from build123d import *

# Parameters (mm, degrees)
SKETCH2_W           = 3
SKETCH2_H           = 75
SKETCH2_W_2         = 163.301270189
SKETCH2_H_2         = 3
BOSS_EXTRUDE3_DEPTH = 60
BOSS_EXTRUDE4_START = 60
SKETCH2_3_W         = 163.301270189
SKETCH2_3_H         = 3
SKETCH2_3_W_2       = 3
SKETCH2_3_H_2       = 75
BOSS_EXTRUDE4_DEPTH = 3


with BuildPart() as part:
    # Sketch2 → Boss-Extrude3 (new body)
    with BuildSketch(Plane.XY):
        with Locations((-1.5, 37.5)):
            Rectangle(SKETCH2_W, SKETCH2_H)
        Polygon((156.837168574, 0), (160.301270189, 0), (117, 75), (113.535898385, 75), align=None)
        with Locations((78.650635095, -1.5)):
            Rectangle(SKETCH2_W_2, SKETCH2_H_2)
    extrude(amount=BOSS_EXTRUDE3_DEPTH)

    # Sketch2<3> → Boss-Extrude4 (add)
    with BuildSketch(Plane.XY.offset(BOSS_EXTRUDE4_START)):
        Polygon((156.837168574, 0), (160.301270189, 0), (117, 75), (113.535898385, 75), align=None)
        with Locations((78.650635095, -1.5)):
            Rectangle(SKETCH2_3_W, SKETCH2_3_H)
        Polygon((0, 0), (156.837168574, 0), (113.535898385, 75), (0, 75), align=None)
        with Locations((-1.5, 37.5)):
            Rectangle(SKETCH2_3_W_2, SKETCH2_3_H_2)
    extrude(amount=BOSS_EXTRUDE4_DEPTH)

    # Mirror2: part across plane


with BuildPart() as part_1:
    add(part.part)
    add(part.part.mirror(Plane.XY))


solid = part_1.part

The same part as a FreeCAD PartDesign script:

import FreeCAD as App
import Part
import Sketcher

V = App.Vector
Q = App.Units.Quantity


def add_polygon(sketch, points):
    """Adds a closed chain of lines whose ends are joined by coincident constraints."""
    first, n = sketch.GeometryCount, len(points)
    for a, b in zip(points, points[1:] + points[:1]):
        sketch.addGeometry(Part.LineSegment(App.Vector(*a, 0), App.Vector(*b, 0)), False)
    for i in range(n):
        sketch.addConstraint(Sketcher.Constraint("Coincident", first + i, 2, first + (i + 1) % n, 1))

doc = App.newDocument("Part")
body = doc.addObject("PartDesign::Body", "Body")

# Sketch on XY plane
sketch1 = doc.addObject("Sketcher::SketchObject", "Sketch")
body.addObject(sketch1)
sketch1.AttachmentSupport = (doc.XY_Plane, [""])
sketch1.MapMode = "FlatFace"
add_polygon(sketch1, [(-3, 75), (-3, -3), (160.3, -3), (160.3, 0), (117, 75), (113.5, 75), (156.8, 0), (0, 0), (0, 75)])  # lines 0-8
sketch1.addConstraint(Sketcher.Constraint("Vertical", 0))
sketch1.addConstraint(Sketcher.Constraint("Horizontal", 1))
sketch1.addConstraint(Sketcher.Constraint("Vertical", 2))
sketch1.addConstraint(Sketcher.Constraint("Horizontal", 4))
sketch1.addConstraint(Sketcher.Constraint("Horizontal", 6))
sketch1.addConstraint(Sketcher.Constraint("Vertical", 7))
sketch1.addConstraint(Sketcher.Constraint("Horizontal", 8))
sketch1.addConstraint(Sketcher.Constraint("Coincident", 6, 2, -1, 1))
sketch1.addConstraint(Sketcher.Constraint("PointOnObject", 2, 2, -1))
sketch1.addConstraint(Sketcher.Constraint("Parallel", 3, 5))
sketch1.addConstraint(Sketcher.Constraint("Horizontal", 4, 2, 7, 2))
sketch1.addConstraint(Sketcher.Constraint("Equal", 8, 2))
sketch1.addConstraint(Sketcher.Constraint("DistanceX", 8, 2, 8, 1, Q("3 mm")))
sketch1.addConstraint(Sketcher.Constraint("DistanceY", 0, 2, 0, 1, Q("78 mm")))
sketch1.addConstraint(Sketcher.Constraint("Angle", 3, Q("120 deg")))
sketch1.addConstraint(Sketcher.Constraint("DistanceX", -1, 1, 3, 2, Q("117 mm")))
sketch1.addConstraint(Sketcher.Constraint("DistanceX", 4, 2, 4, 1, Q("3.464102 mm")))
pad1 = doc.addObject("PartDesign::Pad", "Pad")
body.addObject(pad1)
pad1.Profile = sketch1
pad1.Length = 60

# Sketch on XY plane
sketch2 = doc.addObject("Sketcher::SketchObject", "Sketch001")
body.addObject(sketch2)
sketch2.AttachmentSupport = (doc.XY_Plane, [""])
sketch2.MapMode = "FlatFace"
sketch2.AttachmentOffset = App.Placement(V(0, 0, 60), App.Rotation())
add_polygon(sketch2, [(160.3, 0), (117, 75), (-3, 75), (-3, 0), (-3, -3), (160.3, -3)])  # lines 0-5
sketch2.addConstraint(Sketcher.Constraint("Horizontal", 1))
sketch2.addConstraint(Sketcher.Constraint("Vertical", 2))
sketch2.addConstraint(Sketcher.Constraint("Vertical", 3))
sketch2.addConstraint(Sketcher.Constraint("Horizontal", 4))
sketch2.addConstraint(Sketcher.Constraint("Vertical", 5))
sketch2.addConstraint(Sketcher.Constraint("PointOnObject", 2, 2, -1))
sketch2.addConstraint(Sketcher.Constraint("PointOnObject", 5, 2, -1))
sketch2.addConstraint(Sketcher.Constraint("DistanceX", 1, 2, 1, 1, Q("120 mm")))
sketch2.addConstraint(Sketcher.Constraint("DistanceY", 2, 2, 2, 1, Q("75 mm")))
sketch2.addConstraint(Sketcher.Constraint("DistanceY", 3, 2, 3, 1, Q("3 mm")))
sketch2.addConstraint(Sketcher.Constraint("Angle", 0, Q("120 deg")))
sketch2.addConstraint(Sketcher.Constraint("DistanceX", -1, 1, 0, 2, Q("117 mm")))
pad2 = doc.addObject("PartDesign::Pad", "Pad001")
body.addObject(pad2)
pad2.Profile = sketch2
pad2.Length = 3
body2 = doc.addObject("PartDesign::Body", "Body001")
doc.recompute()

body2.BaseFeature = body
doc.recompute()

mirroring = doc.addObject("Part::Mirroring", "Mirroring")
mirroring.Source = body
mirroring.Base = V(0, 0, 0)
mirroring.Normal = V(0, 0, 1)
body3 = doc.addObject("PartDesign::Body", "Body002")
body3.BaseFeature = mirroring
boolean = doc.addObject("PartDesign::Boolean", "Boolean")
body2.addObject(boolean)
boolean.Type = "Fuse"
boolean.addObjects([body3])
doc.recompute()
mirroring.Visibility = False

doc.recompute()
